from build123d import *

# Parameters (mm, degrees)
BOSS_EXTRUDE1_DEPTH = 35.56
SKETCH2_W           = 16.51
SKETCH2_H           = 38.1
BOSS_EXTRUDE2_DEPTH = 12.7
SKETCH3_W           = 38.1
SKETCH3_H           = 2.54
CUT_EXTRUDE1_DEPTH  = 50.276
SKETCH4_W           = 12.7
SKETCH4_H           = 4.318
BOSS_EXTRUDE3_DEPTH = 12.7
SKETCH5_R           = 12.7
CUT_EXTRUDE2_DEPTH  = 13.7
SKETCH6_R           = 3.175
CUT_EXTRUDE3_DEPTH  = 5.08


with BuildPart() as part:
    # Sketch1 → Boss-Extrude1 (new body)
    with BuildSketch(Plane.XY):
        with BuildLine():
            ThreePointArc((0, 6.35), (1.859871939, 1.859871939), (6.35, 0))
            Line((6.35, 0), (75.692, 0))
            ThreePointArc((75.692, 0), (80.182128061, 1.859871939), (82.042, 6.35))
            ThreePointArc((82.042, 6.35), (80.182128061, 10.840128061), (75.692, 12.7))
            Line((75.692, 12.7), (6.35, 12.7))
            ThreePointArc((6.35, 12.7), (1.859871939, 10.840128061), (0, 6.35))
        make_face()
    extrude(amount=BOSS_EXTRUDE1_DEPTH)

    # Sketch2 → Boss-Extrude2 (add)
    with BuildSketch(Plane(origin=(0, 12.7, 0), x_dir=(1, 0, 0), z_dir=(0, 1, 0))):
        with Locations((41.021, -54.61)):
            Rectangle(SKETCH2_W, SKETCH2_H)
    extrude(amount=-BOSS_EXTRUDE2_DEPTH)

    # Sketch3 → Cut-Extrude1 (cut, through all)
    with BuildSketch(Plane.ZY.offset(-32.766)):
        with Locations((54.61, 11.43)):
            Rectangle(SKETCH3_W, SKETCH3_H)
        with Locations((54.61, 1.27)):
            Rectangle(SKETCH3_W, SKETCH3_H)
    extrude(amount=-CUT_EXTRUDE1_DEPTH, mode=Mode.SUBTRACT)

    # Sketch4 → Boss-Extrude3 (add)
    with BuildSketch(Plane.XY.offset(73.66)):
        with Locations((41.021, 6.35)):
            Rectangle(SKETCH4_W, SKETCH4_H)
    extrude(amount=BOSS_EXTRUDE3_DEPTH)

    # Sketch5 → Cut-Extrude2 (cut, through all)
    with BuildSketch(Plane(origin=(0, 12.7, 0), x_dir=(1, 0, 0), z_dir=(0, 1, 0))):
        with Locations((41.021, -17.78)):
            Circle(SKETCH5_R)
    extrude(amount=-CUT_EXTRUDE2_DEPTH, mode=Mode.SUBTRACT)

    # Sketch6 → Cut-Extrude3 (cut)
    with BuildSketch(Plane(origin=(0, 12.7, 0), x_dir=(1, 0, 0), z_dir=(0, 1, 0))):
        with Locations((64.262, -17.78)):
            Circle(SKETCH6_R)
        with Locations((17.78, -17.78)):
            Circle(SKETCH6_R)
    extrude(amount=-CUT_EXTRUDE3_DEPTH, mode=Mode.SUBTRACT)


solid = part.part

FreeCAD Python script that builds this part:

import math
import FreeCAD as App
import Part
import Sketcher

V = App.Vector
Q = App.Units.Quantity

doc = App.newDocument("Part")
body = doc.addObject("PartDesign::Body", "Body")

# Sketch on XY plane
sketch1 = doc.addObject("Sketcher::SketchObject", "Sketch")
body.addObject(sketch1)
sketch1.AttachmentSupport = (doc.XY_Plane, [""])
sketch1.MapMode = "FlatFace"
sketch1.addGeometry(Part.ArcOfCircle(Part.Circle(V(6, 6, 0), V(0, 0, 1), 6), math.radians(180), math.radians(270)), False)
sketch1.addGeometry(Part.LineSegment(V(6, 0, 0), V(76, 0, 0)), False)
sketch1.addGeometry(Part.ArcOfCircle(Part.Circle(V(76, 6, 0), V(0, 0, 1), 6), math.radians(-90), math.radians(0)), False)
sketch1.addGeometry(Part.ArcOfCircle(Part.Circle(V(76, 6, 0), V(0, 0, 1), 6), math.radians(0), math.radians(90)), False)
sketch1.addGeometry(Part.LineSegment(V(76, 13, 0), V(6, 13, 0)), False)
sketch1.addGeometry(Part.ArcOfCircle(Part.Circle(V(6, 6, 0), V(0, 0, 1), 6), math.radians(90), math.radians(180)), False)
sketch1.addConstraint(Sketcher.Constraint("Tangent", 0, 2, 1, 1))
sketch1.addConstraint(Sketcher.Constraint("Tangent", 1, 2, 2, 1))
sketch1.addConstraint(Sketcher.Constraint("Tangent", 2, 2, 3, 1))
sketch1.addConstraint(Sketcher.Constraint("Tangent", 3, 2, 4, 1))
sketch1.addConstraint(Sketcher.Constraint("Tangent", 4, 2, 5, 1))
sketch1.addConstraint(Sketcher.Constraint("Tangent", 5, 2, 0, 1))
sketch1.addConstraint(Sketcher.Constraint("Horizontal", 1))
sketch1.addConstraint(Sketcher.Constraint("Horizontal", 4))
sketch1.addConstraint(Sketcher.Constraint("Equal", 0, 2))
sketch1.addConstraint(Sketcher.Constraint("Equal", 2, 3))
sketch1.addConstraint(Sketcher.Constraint("PointOnObject", 0, 2, -1))
sketch1.addConstraint(Sketcher.Constraint("PointOnObject", 5, 2, -2))
sketch1.addConstraint(Sketcher.Constraint("Horizontal", 5, 3, 2, 2))
sketch1.addConstraint(Sketcher.Constraint("Horizontal", 2, 2, 5, 2))
sketch1.addConstraint(Sketcher.Constraint("Radius", 0, Q("0.25 in")))
sketch1.addConstraint(Sketcher.Constraint("DistanceX", 1, 1, 1, 2, Q("2.73 in")))
pad1 = doc.addObject("PartDesign::Pad", "Pad")
body.addObject(pad1)
pad1.Profile = sketch1
pad1.Length = Q("1.4 in")

# Sketch on XZ plane
sketch2 = doc.addObject("Sketcher::SketchObject", "Sketch001")
body.addObject(sketch2)
sketch2.AttachmentSupport = (doc.XZ_Plane, [""])
sketch2.MapMode = "FlatFace"
sketch2.AttachmentOffset = App.Placement(V(0, 0, -0.5 * 25.4), App.Rotation())
sketch2.addGeometry(Part.LineSegment(V(33, 36, 0), V(33, 74, 0)), False)
sketch2.addGeometry(Part.LineSegment(V(33, 74, 0), V(49, 74, 0)), False)
sketch2.addGeometry(Part.LineSegment(V(49, 74, 0), V(49, 36, 0)), False)
sketch2.addGeometry(Part.LineSegment(V(49, 36, 0), V(33, 36, 0)), False)
sketch2.addConstraint(Sketcher.Constraint("Coincident", 0, 2, 1, 1))
sketch2.addConstraint(Sketcher.Constraint("Coincident", 1, 2, 2, 1))
sketch2.addConstraint(Sketcher.Constraint("Coincident", 2, 2, 3, 1))
sketch2.addConstraint(Sketcher.Constraint("Coincident", 3, 2, 0, 1))
sketch2.addConstraint(Sketcher.Constraint("Vertical", 0))
sketch2.addConstraint(Sketcher.Constraint("Horizontal", 1))
sketch2.addConstraint(Sketcher.Constraint("Vertical", 2))
sketch2.addConstraint(Sketcher.Constraint("Horizontal", 3))
sketch2.addConstraint(Sketcher.Constraint("DistanceY", 0, 1, 0, 2, Q("1.5 in")))
sketch2.addConstraint(Sketcher.Constraint("DistanceX", 1, 1, 1, 2, Q("0.65 in")))
sketch2.addConstraint(Sketcher.Constraint("DistanceY", -1, 1, 0, 2, Q("2.9 in")))
sketch2.addConstraint(Sketcher.Constraint("DistanceX", -1, 1, 0, 2, Q("1.29 in")))
pad2 = doc.addObject("PartDesign::Pad", "Pad001")
body.addObject(pad2)
pad2.Profile = sketch2
pad2.Length = Q("0.5 in")

# Sketch on YZ plane
sketch3 = doc.addObject("Sketcher::SketchObject", "Sketch002")
body.addObject(sketch3)
sketch3.AttachmentSupport = (doc.YZ_Plane, [""])
sketch3.MapMode = "FlatFace"
sketch3.AttachmentOffset = App.Placement(V(0, 0, 1.29 * 25.4), App.Rotation())
sketch3.addGeometry(Part.LineSegment(V(12.7, 35.6, 0), V(10.2, 35.6, 0)), False)
sketch3.addGeometry(Part.LineSegment(V(10.2, 35.6, 0), V(10.2, 73.7, 0)), False)
sketch3.addGeometry(Part.LineSegment(V(10.2, 73.7, 0), V(12.7, 73.7, 0)), False)
sketch3.addGeometry(Part.LineSegment(V(12.7, 73.7, 0), V(12.7, 35.6, 0)), False)
sketch3.addGeometry(Part.LineSegment(V(2.5, 35.6, 0), V(0, 35.6, 0)), False)
sketch3.addGeometry(Part.LineSegment(V(0, 35.6, 0), V(0, 73.7, 0)), False)
sketch3.addGeometry(Part.LineSegment(V(0, 73.7, 0), V(2.5, 73.7, 0)), False)
sketch3.addGeometry(Part.LineSegment(V(2.5, 73.7, 0), V(2.5, 35.6, 0)), False)
sketch3.addConstraint(Sketcher.Constraint("Coincident", 0, 2, 1, 1))
sketch3.addConstraint(Sketcher.Constraint("Coincident", 1, 2, 2, 1))
sketch3.addConstraint(Sketcher.Constraint("Coincident", 2, 2, 3, 1))
sketch3.addConstraint(Sketcher.Constraint("Coincident", 3, 2, 0, 1))
sketch3.addConstraint(Sketcher.Constraint("Coincident", 4, 2, 5, 1))
sketch3.addConstraint(Sketcher.Constraint("Coincident", 5, 2, 6, 1))
sketch3.addConstraint(Sketcher.Constraint("Coincident", 6, 2, 7, 1))
sketch3.addConstraint(Sketcher.Constraint("Coincident", 7, 2, 4, 1))
sketch3.addConstraint(Sketcher.Constraint("Horizontal", 0))
sketch3.addConstraint(Sketcher.Constraint("Vertical", 1))
sketch3.addConstraint(Sketcher.Constraint("Horizontal", 2))
sketch3.addConstraint(Sketcher.Constraint("Vertical", 3))
sketch3.addConstraint(Sketcher.Constraint("Horizontal", 4))
sketch3.addConstraint(Sketcher.Constraint("Vertical", 5))
sketch3.addConstraint(Sketcher.Constraint("Horizontal", 6))
sketch3.addConstraint(Sketcher.Constraint("Vertical", 7))
sketch3.addConstraint(Sketcher.Constraint("PointOnObject", 4, 2, -2))
sketch3.addConstraint(Sketcher.Constraint("Horizontal", 3, 2, 4, 2))
sketch3.addConstraint(Sketcher.Constraint("Horizontal", 2, 2, 5, 2))
sketch3.addConstraint(Sketcher.Constraint("Equal", 2, 4))
sketch3.addConstraint(Sketcher.Constraint("DistanceX", 0, 2, 0, 1, Q("0.1 in")))
sketch3.addConstraint(Sketcher.Constraint("DistanceY", 1, 1, 1, 2, Q("1.5 in")))
sketch3.addConstraint(Sketcher.Constraint("DistanceX", -1, 1, 0, 2, Q("0.4 in")))
sketch3.addConstraint(Sketcher.Constraint("DistanceY", -1, 1, 0, 2, Q("1.4 in")))
pocket1 = doc.addObject("PartDesign::Pocket", "Pocket")
body.addObject(pocket1)
pocket1.Profile = sketch3
pocket1.Type = "ThroughAll"
pocket1.Reversed = True

# Sketch on XY plane
sketch4 = doc.addObject("Sketcher::SketchObject", "Sketch003")
body.addObject(sketch4)
sketch4.AttachmentSupport = (doc.XY_Plane, [""])
sketch4.MapMode = "FlatFace"
sketch4.AttachmentOffset = App.Placement(V(0, 0, 2.9 * 25.4), App.Rotation())
sketch4.addGeometry(Part.LineSegment(V(34.7, 8.5, 0), V(34.7, 4.2, 0)), False)
sketch4.addGeometry(Part.LineSegment(V(34.7, 4.2, 0), V(47.4, 4.2, 0)), False)
sketch4.addGeometry(Part.LineSegment(V(47.4, 4.2, 0), V(47.4, 8.5, 0)), False)
sketch4.addGeometry(Part.LineSegment(V(47.4, 8.5, 0), V(34.7, 8.5, 0)), False)
sketch4.addConstraint(Sketcher.Constraint("Coincident", 0, 2, 1, 1))
sketch4.addConstraint(Sketcher.Constraint("Coincident", 1, 2, 2, 1))
sketch4.addConstraint(Sketcher.Constraint("Coincident", 2, 2, 3, 1))
sketch4.addConstraint(Sketcher.Constraint("Coincident", 3, 2, 0, 1))
sketch4.addConstraint(Sketcher.Constraint("Vertical", 0))
sketch4.addConstraint(Sketcher.Constraint("Horizontal", 1))
sketch4.addConstraint(Sketcher.Constraint("Vertical", 2))
sketch4.addConstraint(Sketcher.Constraint("Horizontal", 3))
sketch4.addConstraint(Sketcher.Constraint("DistanceX", 1, 1, 1, 2, Q("0.5 in")))
sketch4.addConstraint(Sketcher.Constraint("DistanceY", 0, 2, 0, 1, Q("0.17 in")))
sketch4.addConstraint(Sketcher.Constraint("DistanceX", -1, 1, 0, 2, Q("1.365 in")))
sketch4.addConstraint(Sketcher.Constraint("DistanceY", -1, 1, 0, 2, Q("0.165 in")))
pad3 = doc.addObject("PartDesign::Pad", "Pad002")
body.addObject(pad3)
pad3.Profile = sketch4
pad3.Length = Q("0.5 in")

# Sketch on XZ plane
sketch5 = doc.addObject("Sketcher::SketchObject", "Sketch004")
body.addObject(sketch5)
sketch5.AttachmentSupport = (doc.XZ_Plane, [""])
sketch5.MapMode = "FlatFace"
sketch5.AttachmentOffset = App.Placement(V(0, 0, -0.5 * 25.4), App.Rotation())
sketch5.addGeometry(Part.Circle(V(41, 18, 0), V(0, 0, 1), 13), False)
sketch5.addConstraint(Sketcher.Constraint("Diameter", 0, Q("1 in")))
sketch5.addConstraint(Sketcher.Constraint("DistanceY", -1, 1, 0, 3, Q("0.7 in")))
sketch5.addConstraint(Sketcher.Constraint("DistanceX", -1, 1, 0, 3, Q("1.615 in")))
pocket2 = doc.addObject("PartDesign::Pocket", "Pocket001")
body.addObject(pocket2)
pocket2.Profile = sketch5
pocket2.Type = "ThroughAll"
pocket2.Reversed = True

# Sketch on XZ plane
sketch6 = doc.addObject("Sketcher::SketchObject", "Sketch005")
body.addObject(sketch6)
sketch6.AttachmentSupport = (doc.XZ_Plane, [""])
sketch6.MapMode = "FlatFace"
sketch6.AttachmentOffset = App.Placement(V(0, 0, -0.5 * 25.4), App.Rotation())
sketch6.addGeometry(Part.Circle(V(64.3, 17.8, 0), V(0, 0, 1), 3.2), False)
sketch6.addGeometry(Part.Circle(V(17.8, 17.8, 0), V(0, 0, 1), 3.2), False)
sketch6.addConstraint(Sketcher.Constraint("Equal", 0, 1))
sketch6.addConstraint(Sketcher.Constraint("Horizontal", 0, 3, 1, 3))
sketch6.addConstraint(Sketcher.Constraint("Diameter", 0, Q("0.25 in")))
sketch6.addConstraint(Sketcher.Constraint("DistanceY", -1, 1, 0, 3, Q("0.7 in")))
sketch6.addConstraint(Sketcher.Constraint("DistanceX", -1, 1, 1, 3, Q("0.7 in")))
sketch6.addConstraint(Sketcher.Constraint("DistanceX", -1, 1, 0, 3, Q("2.53 in")))
pocket3 = doc.addObject("PartDesign::Pocket", "Pocket002")
body.addObject(pocket3)
pocket3.Profile = sketch6
pocket3.Length = Q("0.2 in")
pocket3.Reversed = True

doc.recompute()
